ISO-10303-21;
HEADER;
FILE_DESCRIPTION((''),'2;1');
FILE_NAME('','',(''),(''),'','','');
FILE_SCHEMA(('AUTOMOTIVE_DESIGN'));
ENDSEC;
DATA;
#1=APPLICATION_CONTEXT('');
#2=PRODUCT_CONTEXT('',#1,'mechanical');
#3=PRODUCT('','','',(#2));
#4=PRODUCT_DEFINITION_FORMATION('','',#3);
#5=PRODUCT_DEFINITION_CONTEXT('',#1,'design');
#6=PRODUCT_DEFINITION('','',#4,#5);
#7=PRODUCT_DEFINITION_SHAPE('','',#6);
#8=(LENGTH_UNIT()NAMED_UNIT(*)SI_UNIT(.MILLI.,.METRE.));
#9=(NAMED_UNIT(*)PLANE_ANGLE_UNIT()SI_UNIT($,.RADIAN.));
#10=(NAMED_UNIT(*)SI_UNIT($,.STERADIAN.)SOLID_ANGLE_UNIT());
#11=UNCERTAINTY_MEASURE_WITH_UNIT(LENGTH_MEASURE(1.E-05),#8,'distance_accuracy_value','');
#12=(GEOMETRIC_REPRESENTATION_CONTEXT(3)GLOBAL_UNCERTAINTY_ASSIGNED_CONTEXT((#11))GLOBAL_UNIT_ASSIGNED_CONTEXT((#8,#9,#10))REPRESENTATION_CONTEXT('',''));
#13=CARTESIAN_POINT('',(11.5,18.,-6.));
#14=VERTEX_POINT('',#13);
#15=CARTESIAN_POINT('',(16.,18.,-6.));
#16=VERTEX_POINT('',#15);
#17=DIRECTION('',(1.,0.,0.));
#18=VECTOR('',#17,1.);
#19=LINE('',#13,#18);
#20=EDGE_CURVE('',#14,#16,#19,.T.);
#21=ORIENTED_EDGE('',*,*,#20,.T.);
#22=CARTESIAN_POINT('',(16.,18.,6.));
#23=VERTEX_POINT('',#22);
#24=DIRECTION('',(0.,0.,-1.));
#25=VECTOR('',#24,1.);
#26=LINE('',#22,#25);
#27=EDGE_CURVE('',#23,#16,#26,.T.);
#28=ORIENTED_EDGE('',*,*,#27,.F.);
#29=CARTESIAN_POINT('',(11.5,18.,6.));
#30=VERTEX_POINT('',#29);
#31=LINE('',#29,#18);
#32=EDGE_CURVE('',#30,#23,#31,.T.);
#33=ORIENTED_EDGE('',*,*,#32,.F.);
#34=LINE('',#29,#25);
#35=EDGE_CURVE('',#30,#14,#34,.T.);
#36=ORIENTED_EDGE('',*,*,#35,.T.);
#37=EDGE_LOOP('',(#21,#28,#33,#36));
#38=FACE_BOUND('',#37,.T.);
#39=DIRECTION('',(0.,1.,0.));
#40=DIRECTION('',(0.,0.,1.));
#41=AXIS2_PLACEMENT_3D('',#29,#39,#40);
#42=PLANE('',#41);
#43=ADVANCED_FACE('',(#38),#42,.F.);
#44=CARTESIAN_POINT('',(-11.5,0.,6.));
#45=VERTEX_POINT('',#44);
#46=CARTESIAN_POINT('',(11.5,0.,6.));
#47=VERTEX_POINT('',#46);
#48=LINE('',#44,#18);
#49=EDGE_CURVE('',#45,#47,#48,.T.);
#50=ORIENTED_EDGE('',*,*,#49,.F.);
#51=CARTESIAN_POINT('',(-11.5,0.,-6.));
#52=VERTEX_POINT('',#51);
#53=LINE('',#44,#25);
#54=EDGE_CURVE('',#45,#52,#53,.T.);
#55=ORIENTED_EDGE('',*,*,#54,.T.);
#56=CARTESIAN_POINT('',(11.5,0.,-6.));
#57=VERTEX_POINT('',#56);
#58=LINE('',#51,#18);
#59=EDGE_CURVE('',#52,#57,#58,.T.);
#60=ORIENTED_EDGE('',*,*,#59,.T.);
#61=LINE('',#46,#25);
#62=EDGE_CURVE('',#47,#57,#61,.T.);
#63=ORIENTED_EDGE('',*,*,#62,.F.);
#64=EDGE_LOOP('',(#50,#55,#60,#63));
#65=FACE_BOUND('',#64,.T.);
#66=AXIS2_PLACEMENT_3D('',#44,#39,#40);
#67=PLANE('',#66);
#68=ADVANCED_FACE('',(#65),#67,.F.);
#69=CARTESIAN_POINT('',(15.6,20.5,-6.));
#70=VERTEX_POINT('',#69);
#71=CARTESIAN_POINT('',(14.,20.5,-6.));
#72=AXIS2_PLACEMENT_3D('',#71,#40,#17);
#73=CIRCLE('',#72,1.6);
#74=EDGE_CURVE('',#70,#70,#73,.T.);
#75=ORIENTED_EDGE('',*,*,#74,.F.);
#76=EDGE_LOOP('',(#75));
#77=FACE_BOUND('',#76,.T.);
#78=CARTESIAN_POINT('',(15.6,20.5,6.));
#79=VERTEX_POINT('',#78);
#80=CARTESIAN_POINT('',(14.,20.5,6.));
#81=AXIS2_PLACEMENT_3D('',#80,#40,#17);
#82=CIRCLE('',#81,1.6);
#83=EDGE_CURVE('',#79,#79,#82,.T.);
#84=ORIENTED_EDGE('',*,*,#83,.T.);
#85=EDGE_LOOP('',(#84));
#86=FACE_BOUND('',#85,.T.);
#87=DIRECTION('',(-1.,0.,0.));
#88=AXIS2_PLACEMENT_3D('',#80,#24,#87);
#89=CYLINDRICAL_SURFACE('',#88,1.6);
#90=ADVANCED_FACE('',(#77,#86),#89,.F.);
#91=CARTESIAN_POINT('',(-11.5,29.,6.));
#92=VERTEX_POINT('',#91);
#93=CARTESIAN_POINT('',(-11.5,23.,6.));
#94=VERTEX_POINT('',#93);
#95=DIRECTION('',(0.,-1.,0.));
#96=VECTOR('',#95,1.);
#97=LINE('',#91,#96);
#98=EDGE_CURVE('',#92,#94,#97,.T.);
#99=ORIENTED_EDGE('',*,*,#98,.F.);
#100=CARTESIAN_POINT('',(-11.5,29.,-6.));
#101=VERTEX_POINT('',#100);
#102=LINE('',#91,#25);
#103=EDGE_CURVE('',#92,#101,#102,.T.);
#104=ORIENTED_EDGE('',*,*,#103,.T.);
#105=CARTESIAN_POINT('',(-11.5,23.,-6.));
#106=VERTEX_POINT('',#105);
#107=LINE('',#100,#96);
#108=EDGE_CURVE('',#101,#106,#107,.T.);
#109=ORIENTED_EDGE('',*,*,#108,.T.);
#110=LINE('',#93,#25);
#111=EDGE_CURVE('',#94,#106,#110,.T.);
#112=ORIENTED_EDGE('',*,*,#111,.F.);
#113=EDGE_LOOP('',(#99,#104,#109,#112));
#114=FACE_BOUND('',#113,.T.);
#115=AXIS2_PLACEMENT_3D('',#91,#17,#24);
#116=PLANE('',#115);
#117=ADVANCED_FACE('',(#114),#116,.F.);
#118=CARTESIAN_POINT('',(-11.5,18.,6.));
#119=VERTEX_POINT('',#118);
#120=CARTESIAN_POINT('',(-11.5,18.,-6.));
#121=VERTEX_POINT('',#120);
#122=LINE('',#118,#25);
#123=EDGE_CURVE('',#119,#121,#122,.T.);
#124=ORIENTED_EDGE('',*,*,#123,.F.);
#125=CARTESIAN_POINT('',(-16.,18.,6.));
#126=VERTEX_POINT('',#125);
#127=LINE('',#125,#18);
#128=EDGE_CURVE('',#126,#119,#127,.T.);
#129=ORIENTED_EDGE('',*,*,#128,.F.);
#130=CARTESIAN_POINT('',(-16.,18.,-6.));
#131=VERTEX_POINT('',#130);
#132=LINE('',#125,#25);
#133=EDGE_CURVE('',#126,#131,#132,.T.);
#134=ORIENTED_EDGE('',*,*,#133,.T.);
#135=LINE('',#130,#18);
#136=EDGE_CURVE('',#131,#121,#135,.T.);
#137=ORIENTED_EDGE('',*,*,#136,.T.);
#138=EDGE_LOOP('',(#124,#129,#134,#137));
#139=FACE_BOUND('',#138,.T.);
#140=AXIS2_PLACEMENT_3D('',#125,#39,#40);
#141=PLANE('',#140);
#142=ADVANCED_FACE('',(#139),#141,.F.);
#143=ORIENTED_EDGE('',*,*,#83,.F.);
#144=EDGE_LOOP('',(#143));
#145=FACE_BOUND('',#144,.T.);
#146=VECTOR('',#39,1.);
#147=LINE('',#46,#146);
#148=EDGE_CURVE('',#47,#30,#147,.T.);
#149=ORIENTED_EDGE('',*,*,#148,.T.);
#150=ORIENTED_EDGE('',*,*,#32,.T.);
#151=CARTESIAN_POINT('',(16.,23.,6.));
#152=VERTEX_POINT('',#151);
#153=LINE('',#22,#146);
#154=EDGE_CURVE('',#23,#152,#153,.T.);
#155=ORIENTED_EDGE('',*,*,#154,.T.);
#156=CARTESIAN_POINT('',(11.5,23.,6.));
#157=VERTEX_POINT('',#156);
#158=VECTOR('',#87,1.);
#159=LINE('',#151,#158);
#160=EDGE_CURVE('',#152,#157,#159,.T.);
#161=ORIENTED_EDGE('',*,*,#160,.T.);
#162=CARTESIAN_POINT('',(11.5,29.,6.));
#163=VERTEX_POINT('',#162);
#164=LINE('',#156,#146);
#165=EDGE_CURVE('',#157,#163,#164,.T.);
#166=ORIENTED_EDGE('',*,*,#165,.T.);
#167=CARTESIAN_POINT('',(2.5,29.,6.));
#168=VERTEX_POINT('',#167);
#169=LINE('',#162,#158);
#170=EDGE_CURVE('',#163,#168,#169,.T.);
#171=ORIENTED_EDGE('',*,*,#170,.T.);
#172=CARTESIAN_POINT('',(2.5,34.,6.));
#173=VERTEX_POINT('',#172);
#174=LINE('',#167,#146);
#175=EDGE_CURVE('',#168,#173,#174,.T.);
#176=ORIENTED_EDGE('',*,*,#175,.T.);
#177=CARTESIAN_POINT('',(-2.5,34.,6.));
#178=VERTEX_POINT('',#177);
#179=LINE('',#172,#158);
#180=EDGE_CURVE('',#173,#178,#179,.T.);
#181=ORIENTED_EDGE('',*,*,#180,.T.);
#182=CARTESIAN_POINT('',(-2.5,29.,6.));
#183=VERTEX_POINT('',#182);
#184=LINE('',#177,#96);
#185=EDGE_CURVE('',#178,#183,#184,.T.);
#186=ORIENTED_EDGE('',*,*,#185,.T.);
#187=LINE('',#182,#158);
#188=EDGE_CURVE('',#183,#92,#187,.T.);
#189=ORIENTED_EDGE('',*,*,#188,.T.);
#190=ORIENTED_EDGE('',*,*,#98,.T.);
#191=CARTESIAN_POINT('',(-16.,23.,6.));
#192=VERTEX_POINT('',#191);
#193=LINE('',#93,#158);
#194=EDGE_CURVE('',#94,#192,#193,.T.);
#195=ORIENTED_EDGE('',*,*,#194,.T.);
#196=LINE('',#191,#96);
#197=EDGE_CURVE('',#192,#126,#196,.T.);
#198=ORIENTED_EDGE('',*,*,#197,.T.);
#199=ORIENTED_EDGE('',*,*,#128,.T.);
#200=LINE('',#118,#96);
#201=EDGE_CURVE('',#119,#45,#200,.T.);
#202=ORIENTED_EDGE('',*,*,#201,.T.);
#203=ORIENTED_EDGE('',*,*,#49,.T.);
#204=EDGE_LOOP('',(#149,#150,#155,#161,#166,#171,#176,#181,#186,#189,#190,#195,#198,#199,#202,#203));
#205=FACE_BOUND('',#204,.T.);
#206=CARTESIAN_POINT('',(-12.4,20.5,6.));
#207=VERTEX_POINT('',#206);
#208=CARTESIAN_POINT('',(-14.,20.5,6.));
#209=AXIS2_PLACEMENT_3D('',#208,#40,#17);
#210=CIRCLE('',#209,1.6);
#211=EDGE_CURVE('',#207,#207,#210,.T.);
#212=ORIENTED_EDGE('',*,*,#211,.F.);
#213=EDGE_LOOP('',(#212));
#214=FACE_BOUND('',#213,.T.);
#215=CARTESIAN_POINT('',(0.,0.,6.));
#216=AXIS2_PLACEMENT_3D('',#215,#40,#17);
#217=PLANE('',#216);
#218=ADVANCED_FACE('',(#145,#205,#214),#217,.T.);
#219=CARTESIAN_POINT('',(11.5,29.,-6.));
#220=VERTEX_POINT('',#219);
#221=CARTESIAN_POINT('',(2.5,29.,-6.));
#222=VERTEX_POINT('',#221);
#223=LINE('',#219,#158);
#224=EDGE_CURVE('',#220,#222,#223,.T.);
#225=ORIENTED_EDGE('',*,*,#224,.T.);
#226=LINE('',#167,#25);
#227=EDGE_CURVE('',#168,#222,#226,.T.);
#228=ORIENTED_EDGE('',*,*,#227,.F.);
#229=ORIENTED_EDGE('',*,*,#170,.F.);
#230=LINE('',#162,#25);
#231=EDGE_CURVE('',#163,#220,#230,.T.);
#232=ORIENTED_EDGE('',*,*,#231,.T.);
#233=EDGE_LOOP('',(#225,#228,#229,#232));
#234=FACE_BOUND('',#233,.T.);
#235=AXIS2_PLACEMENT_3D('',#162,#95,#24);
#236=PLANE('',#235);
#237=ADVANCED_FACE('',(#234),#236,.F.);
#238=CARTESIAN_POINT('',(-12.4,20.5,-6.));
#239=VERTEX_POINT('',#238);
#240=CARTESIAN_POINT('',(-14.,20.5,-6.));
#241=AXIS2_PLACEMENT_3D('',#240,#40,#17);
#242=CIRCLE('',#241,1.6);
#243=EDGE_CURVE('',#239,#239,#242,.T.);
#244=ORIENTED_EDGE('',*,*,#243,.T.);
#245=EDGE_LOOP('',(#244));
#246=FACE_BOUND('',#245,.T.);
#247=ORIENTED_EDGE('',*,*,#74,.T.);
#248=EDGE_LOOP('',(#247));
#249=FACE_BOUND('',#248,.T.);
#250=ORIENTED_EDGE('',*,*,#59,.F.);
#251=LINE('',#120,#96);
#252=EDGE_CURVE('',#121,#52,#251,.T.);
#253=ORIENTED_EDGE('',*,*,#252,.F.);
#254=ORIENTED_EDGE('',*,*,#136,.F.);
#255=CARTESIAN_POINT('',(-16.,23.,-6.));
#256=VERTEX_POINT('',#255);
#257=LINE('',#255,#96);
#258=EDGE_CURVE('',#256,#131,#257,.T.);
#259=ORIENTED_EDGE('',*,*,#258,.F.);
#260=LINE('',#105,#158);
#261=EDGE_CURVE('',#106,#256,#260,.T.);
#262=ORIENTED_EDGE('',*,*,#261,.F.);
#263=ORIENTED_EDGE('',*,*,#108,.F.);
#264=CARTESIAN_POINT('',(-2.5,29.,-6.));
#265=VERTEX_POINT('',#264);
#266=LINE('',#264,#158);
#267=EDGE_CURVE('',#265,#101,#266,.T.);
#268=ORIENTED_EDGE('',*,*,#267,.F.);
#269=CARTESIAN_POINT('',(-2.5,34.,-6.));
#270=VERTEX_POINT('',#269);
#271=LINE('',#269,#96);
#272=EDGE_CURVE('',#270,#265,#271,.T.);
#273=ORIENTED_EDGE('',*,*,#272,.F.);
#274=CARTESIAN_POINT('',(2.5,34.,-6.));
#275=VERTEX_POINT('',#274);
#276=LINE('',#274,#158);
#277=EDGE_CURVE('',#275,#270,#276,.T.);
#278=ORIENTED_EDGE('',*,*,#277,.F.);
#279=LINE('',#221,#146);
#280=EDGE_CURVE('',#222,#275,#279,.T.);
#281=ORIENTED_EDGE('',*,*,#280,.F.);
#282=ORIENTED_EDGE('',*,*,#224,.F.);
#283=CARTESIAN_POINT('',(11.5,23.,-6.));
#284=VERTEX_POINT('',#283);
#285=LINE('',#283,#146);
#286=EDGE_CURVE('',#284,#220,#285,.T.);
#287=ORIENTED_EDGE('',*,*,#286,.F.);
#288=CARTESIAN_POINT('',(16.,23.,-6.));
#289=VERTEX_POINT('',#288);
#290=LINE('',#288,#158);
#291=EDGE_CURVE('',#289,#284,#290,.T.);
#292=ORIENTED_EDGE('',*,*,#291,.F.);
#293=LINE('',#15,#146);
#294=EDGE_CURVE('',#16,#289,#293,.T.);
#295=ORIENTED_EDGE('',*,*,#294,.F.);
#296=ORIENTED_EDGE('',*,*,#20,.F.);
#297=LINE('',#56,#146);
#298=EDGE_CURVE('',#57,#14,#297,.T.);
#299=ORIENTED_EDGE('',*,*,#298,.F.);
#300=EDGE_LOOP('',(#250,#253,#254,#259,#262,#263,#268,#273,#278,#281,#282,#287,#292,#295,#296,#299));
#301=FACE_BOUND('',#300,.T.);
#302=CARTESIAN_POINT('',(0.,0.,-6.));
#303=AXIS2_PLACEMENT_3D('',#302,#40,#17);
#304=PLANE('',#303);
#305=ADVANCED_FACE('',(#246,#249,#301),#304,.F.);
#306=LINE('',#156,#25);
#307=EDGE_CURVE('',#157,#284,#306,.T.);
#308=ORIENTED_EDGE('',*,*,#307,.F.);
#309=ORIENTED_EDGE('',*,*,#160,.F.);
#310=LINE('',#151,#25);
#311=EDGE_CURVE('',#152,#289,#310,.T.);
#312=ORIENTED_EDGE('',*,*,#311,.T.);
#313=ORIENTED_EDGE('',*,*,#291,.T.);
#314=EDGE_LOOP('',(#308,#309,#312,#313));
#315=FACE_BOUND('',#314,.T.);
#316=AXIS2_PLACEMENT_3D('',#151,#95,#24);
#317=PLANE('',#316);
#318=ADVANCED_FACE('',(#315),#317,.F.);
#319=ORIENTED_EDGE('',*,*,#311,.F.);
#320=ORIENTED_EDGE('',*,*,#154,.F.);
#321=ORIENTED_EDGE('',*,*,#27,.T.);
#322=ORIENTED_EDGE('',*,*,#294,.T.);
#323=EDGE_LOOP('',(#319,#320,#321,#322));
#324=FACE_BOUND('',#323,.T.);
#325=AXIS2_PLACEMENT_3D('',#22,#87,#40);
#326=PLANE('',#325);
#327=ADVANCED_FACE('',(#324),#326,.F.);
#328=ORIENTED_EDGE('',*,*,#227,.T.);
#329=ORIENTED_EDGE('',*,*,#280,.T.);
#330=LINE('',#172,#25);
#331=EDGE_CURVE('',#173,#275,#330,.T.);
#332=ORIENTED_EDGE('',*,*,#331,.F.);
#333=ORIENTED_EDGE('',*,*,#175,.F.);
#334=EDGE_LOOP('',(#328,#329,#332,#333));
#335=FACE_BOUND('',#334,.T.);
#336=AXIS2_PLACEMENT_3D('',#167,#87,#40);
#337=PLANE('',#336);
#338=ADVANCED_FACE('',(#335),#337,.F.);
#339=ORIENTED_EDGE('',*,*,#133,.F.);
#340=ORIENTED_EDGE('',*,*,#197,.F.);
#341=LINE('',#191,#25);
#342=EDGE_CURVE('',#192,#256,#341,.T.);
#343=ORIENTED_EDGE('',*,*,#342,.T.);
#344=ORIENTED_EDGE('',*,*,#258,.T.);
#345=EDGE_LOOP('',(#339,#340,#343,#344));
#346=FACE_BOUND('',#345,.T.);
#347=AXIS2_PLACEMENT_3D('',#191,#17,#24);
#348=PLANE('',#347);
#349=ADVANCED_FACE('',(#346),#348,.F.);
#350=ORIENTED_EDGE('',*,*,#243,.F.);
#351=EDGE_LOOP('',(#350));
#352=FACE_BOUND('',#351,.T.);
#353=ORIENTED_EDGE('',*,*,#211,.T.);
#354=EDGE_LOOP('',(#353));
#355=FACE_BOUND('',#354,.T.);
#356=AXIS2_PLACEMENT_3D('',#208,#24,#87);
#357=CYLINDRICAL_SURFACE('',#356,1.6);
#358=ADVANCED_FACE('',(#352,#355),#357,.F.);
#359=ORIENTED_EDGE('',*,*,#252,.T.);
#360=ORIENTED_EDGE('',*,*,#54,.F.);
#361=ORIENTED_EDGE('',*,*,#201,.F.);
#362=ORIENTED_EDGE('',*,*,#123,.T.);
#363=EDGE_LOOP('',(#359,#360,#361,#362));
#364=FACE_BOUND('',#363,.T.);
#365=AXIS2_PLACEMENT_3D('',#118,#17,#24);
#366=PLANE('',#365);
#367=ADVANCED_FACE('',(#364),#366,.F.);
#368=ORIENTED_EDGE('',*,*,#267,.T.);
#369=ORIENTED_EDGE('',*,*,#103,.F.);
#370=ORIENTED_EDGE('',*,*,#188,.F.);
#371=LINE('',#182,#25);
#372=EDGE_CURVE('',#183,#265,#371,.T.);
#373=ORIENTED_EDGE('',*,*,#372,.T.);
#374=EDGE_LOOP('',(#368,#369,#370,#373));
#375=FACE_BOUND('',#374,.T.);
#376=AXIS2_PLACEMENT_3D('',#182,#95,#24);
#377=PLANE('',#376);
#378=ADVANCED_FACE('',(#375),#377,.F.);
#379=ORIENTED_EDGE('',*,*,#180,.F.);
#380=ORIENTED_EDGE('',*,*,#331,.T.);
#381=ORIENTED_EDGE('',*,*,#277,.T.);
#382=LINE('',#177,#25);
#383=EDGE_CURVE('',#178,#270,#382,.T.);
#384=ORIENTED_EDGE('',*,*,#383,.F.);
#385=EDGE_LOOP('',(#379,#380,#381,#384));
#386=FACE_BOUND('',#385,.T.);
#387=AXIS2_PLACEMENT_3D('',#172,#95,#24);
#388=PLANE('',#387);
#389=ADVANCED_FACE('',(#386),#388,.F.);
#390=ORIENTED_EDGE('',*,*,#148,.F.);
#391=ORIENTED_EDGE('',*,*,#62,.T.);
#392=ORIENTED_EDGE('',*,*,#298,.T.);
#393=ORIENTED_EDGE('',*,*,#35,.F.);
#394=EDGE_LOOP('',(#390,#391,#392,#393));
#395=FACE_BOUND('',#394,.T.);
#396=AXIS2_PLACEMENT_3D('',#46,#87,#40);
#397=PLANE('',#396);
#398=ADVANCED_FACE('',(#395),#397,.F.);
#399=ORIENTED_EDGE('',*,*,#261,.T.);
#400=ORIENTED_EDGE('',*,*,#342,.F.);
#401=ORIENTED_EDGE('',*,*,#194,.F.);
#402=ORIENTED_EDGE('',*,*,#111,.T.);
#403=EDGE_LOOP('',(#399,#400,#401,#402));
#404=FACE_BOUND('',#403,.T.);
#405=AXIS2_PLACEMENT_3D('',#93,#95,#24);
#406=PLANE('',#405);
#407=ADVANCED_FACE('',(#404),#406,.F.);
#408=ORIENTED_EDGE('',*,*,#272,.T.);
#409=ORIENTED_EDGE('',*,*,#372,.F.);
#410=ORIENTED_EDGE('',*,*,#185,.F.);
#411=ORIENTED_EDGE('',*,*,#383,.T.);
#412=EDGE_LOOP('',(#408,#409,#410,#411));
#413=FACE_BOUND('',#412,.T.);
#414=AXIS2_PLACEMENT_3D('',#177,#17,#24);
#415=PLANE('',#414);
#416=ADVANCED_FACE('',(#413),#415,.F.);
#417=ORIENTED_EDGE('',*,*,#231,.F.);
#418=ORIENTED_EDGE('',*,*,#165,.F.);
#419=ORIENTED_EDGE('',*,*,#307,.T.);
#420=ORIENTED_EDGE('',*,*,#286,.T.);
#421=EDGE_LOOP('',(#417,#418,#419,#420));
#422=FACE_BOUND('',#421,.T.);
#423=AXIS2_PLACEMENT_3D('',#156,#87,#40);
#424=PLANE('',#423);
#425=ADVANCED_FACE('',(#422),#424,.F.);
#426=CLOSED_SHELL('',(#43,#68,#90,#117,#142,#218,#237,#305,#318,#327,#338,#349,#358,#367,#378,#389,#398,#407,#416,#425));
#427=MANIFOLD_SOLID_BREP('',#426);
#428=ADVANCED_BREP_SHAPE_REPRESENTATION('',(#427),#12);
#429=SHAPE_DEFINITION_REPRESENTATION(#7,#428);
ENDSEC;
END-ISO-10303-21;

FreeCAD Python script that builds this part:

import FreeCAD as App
import Part
import Sketcher
Q = App.Units.Quantity


def add_polygon(sketch, points):
    """Adds a closed chain of lines whose ends are joined by coincident constraints."""
    first, n = sketch.GeometryCount, len(points)
    for a, b in zip(points, points[1:] + points[:1]):
        sketch.addGeometry(Part.LineSegment(App.Vector(*a, 0), App.Vector(*b, 0)), False)
    for i in range(n):
        sketch.addConstraint(Sketcher.Constraint("Coincident", first + i, 2, first + (i + 1) % n, 1))

doc = App.newDocument("Part")
body = doc.addObject("PartDesign::Body", "Body")

sketch1 = body.newObject("Sketcher::SketchObject", "Sketch")
sketch1.AttachmentSupport = (doc.getObject("XY_Plane"), [""])
sketch1.MapMode = "FlatFace"
add_polygon(sketch1, [(11.5, 0), (11.5, 18), (16, 18), (16, 23), (11.5, 23), (11.5, 29), (2.5, 29), (2.5, 34), (-2.5, 34), (-2.5, 29), (-11.5, 29), (-11.5, 23), (-16, 23), (-16, 18), (-11.5, 18), (-11.5, 0)])
sketch1.addGeometry(Part.Circle(App.Vector(-14, 20.5, 0), App.Vector(0, 0, 1), 1.6), False)
sketch1.addGeometry(Part.Circle(App.Vector(14, 20.5, 0), App.Vector(0, 0, 1), 1.6), False)
sketch1.addConstraint([
    Sketcher.Constraint("Vertical", 0),
    Sketcher.Constraint("Horizontal", 1),
    Sketcher.Constraint("Vertical", 2),
    Sketcher.Constraint("Horizontal", 3),
    Sketcher.Constraint("Vertical", 4),
    Sketcher.Constraint("Horizontal", 5),
    Sketcher.Constraint("Vertical", 6),
    Sketcher.Constraint("Horizontal", 7),
    Sketcher.Constraint("Vertical", 8),
    Sketcher.Constraint("Horizontal", 9),
    Sketcher.Constraint("Vertical", 10),
    Sketcher.Constraint("Horizontal", 11),
    Sketcher.Constraint("Vertical", 12),
    Sketcher.Constraint("Horizontal", 13),
    Sketcher.Constraint("Vertical", 14),
    Sketcher.Constraint("Horizontal", 15),
    Sketcher.Constraint("Equal", 16, 17),
    Sketcher.Constraint("Symmetric", 14, 2, 15, 2, -1, 1),
    Sketcher.Constraint("Symmetric", 16, 3, 17, 3, -2),
    Sketcher.Constraint("Symmetric", 5, 2, 8, 2, -2),
    Sketcher.Constraint("Symmetric", 3, 2, 10, 2, -2),
    Sketcher.Constraint("Symmetric", 1, 2, 12, 2, -2),
    Sketcher.Constraint("Vertical", 0, 2, 3, 2),
    Sketcher.Constraint("Equal", 7, 2),
    Sketcher.Constraint("Equal", 2, 6),
    Sketcher.Constraint("Diameter", 16, Q("3.2 mm")),
    Sketcher.Constraint("DistanceX", 5, 2, 5, 1, Q("9 mm")),
    Sketcher.Constraint("DistanceX", 7, 2, 7, 1, Q("5 mm")),
    Sketcher.Constraint("DistanceY", 0, 1, 0, 2, Q("18 mm")),
    Sketcher.Constraint("DistanceY", 4, 1, 4, 2, Q("6 mm")),
    Sketcher.Constraint("DistanceX", 1, 1, 1, 2, Q("4.5 mm")),
    Sketcher.Constraint("DistanceX", 16, 3, -1, 1, Q("14 mm")),
    Sketcher.Constraint("DistanceY", -1, 1, 16, 3, Q("20.5 mm")),
])
pad1 = body.newObject("PartDesign::Pad", "Pad")
pad1.Profile = sketch1
pad1.Length = 12
pad1.Midplane = True

doc.recompute()
